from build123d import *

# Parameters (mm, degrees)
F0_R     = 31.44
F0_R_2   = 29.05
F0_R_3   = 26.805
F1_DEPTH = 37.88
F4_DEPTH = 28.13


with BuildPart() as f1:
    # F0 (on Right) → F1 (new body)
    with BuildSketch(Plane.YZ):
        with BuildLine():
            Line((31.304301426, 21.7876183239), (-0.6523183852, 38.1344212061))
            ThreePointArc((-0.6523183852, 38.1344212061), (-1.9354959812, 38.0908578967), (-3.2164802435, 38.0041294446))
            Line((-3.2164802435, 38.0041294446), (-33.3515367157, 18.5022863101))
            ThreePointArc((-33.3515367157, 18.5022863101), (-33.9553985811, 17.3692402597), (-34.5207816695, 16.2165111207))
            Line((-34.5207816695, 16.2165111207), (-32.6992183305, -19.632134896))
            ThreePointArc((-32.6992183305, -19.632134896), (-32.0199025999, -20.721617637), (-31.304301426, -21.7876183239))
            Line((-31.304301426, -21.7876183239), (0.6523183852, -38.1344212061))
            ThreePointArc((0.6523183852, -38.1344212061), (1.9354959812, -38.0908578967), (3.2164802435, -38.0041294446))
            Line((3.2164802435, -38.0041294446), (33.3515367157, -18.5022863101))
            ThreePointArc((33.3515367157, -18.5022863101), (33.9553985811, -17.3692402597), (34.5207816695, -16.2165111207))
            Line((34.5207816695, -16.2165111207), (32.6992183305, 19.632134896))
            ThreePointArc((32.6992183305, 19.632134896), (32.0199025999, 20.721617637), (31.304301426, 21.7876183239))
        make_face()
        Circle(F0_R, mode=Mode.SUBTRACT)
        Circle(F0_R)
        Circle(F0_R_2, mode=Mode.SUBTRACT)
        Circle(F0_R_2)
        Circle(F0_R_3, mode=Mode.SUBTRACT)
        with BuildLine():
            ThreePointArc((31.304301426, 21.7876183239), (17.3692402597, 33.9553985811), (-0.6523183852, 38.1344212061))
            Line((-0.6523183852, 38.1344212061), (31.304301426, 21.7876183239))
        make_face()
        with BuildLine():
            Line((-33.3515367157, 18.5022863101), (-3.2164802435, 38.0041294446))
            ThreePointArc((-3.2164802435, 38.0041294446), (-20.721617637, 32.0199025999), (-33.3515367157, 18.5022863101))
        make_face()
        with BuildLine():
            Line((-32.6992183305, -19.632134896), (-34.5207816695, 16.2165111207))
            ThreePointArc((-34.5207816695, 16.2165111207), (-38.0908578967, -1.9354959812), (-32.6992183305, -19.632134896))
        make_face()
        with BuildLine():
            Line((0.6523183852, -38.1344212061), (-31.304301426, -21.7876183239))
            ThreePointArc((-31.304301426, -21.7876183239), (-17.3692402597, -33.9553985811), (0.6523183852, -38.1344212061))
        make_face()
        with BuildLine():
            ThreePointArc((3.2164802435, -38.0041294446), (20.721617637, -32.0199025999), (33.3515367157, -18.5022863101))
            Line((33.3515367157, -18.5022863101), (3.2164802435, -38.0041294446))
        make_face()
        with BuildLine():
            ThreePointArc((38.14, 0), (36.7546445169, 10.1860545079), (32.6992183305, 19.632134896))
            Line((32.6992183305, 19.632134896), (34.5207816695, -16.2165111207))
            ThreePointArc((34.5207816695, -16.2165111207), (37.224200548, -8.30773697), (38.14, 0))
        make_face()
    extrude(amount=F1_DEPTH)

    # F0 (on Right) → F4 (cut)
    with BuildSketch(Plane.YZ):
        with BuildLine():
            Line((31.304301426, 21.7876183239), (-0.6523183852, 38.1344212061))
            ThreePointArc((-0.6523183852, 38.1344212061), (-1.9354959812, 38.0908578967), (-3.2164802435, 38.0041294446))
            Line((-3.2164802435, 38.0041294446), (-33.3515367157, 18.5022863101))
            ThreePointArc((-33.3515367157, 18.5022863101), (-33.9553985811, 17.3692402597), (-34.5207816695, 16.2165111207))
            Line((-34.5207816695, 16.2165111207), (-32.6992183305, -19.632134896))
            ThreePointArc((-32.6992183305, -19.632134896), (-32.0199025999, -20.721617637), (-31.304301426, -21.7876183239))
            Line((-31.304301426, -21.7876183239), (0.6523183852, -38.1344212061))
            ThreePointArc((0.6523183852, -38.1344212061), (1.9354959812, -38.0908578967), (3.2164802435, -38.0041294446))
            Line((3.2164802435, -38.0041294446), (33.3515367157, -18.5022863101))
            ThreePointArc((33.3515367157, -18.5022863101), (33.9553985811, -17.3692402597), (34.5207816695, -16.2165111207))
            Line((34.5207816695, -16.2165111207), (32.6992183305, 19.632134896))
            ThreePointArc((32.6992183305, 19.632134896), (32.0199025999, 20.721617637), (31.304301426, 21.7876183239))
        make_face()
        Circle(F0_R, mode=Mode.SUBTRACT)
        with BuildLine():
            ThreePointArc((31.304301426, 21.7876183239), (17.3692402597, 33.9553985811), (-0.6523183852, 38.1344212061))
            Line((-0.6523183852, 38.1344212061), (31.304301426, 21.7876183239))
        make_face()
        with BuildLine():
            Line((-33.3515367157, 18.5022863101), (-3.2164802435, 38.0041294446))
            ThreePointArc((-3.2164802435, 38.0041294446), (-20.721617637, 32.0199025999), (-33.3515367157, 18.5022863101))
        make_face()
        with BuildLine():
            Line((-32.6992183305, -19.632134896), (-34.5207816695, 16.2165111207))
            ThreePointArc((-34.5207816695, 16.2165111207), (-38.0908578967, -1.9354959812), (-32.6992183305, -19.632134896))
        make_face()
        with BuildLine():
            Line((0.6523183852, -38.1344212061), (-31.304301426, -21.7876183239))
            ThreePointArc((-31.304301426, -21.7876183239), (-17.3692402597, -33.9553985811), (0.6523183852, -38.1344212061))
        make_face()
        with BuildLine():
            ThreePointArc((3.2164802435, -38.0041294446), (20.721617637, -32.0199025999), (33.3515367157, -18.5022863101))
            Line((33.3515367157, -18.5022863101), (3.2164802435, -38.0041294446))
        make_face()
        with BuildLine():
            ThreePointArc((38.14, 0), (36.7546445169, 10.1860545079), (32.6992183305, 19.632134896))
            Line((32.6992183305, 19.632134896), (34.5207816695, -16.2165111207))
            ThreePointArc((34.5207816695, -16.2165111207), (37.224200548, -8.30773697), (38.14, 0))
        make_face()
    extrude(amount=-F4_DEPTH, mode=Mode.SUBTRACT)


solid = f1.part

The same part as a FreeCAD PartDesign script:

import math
import FreeCAD as App
import Part
import Sketcher

V = App.Vector

doc = App.newDocument("Part")
params = doc.addObject("Spreadsheet::Sheet", "Params")
for row, (alias, value) in enumerate([
    ("sketch1_diameter", "53.61 mm"),
    ("sketch1_radius", "38.14 mm"),
    ("pad1_length", "37.88 mm"),
    ("sketch2_diameter", "62.88 mm"),
    ("sketch2_radius", "38.14 mm"),
    ("pocket1_length", "28.13 mm"),
], start=1):
    params.set(f"A{row}", alias)
    params.set(f"B{row}", "=" + value)
    params.setAlias(f"B{row}", alias)

body = doc.addObject("PartDesign::Body", "Body")

# Sketch on YZ plane
sketch1 = body.newObject("Sketcher::SketchObject", "Sketch")
sketch1.AttachmentSupport = (doc.getObject("YZ_Plane"), [""])
sketch1.MapMode = "FlatFace"
sketch1.addGeometry(Part.ArcOfCircle(Part.Circle(V(0, 0, 0), V(0, 0, 1), 38.1), math.radians(30.98), math.radians(34.84)), False)
sketch1.addGeometry(Part.ArcOfCircle(Part.Circle(V(0, 0, 0), V(0, 0, 1), 38.1), math.radians(35), math.radians(91)), False)
sketch1.addGeometry(Part.ArcOfCircle(Part.Circle(V(0, 0, 0), V(0, 0, 1), 38.1), math.radians(90.98), math.radians(94.84)), False)
sketch1.addGeometry(Part.ArcOfCircle(Part.Circle(V(0, 0, 0), V(0, 0, 1), 38.1), math.radians(95), math.radians(151)), False)
sketch1.addGeometry(Part.ArcOfCircle(Part.Circle(V(0, 0, 0), V(0, 0, 1), 38.1), math.radians(150.98), math.radians(154.84)), False)
sketch1.addGeometry(Part.ArcOfCircle(Part.Circle(V(0, 0, 0), V(0, 0, 1), 38.1), math.radians(155), math.radians(211)), False)
sketch1.addGeometry(Part.ArcOfCircle(Part.Circle(V(0, 0, 0), V(0, 0, 1), 38.1), math.radians(-149.02), math.radians(-145.16)), False)
sketch1.addGeometry(Part.ArcOfCircle(Part.Circle(V(0, 0, 0), V(0, 0, 1), 38.1), math.radians(-145), math.radians(-89)), False)
sketch1.addGeometry(Part.ArcOfCircle(Part.Circle(V(0, 0, 0), V(0, 0, 1), 38.1), math.radians(-89.02), math.radians(-85.16)), False)
sketch1.addGeometry(Part.ArcOfCircle(Part.Circle(V(0, 0, 0), V(0, 0, 1), 38.1), math.radians(-85), math.radians(-29)), False)
sketch1.addGeometry(Part.ArcOfCircle(Part.Circle(V(0, 0, 0), V(0, 0, 1), 38.1), math.radians(-29.02), math.radians(-25.16)), False)
sketch1.addGeometry(Part.ArcOfCircle(Part.Circle(V(0, 0, 0), V(0, 0, 1), 38.1), math.radians(-25), math.radians(0)), False)
sketch1.addGeometry(Part.ArcOfCircle(Part.Circle(V(0, 0, 0), V(0, 0, 1), 38.1), math.radians(0), math.radians(31)), False)
sketch1.addGeometry(Part.Circle(V(0, 0, 0), V(0, 0, 1), 26.8), False)
sketch1.addConstraint(Sketcher.Constraint("Tangent", 0, 2, 1, 1))
sketch1.addConstraint(Sketcher.Constraint("Tangent", 1, 2, 2, 1))
sketch1.addConstraint(Sketcher.Constraint("Tangent", 2, 2, 3, 1))
sketch1.addConstraint(Sketcher.Constraint("Tangent", 3, 2, 4, 1))
sketch1.addConstraint(Sketcher.Constraint("Tangent", 4, 2, 5, 1))
sketch1.addConstraint(Sketcher.Constraint("Tangent", 5, 2, 6, 1))
sketch1.addConstraint(Sketcher.Constraint("Tangent", 6, 2, 7, 1))
sketch1.addConstraint(Sketcher.Constraint("Tangent", 7, 2, 8, 1))
sketch1.addConstraint(Sketcher.Constraint("Tangent", 8, 2, 9, 1))
sketch1.addConstraint(Sketcher.Constraint("Tangent", 9, 2, 10, 1))
sketch1.addConstraint(Sketcher.Constraint("Tangent", 10, 2, 11, 1))
sketch1.addConstraint(Sketcher.Constraint("Tangent", 11, 2, 12, 1))
sketch1.addConstraint(Sketcher.Constraint("Tangent", 12, 2, 0, 1))
sketch1.addConstraint(Sketcher.Constraint("Coincident", 0, 3, -1, 1))
sketch1.addConstraint(Sketcher.Constraint("Coincident", 2, 3, -1, 1))
sketch1.addConstraint(Sketcher.Constraint("Coincident", 4, 3, -1, 1))
sketch1.addConstraint(Sketcher.Constraint("Coincident", 6, 3, -1, 1))
sketch1.addConstraint(Sketcher.Constraint("Coincident", 8, 3, -1, 1))
sketch1.addConstraint(Sketcher.Constraint("Coincident", 10, 3, -1, 1))
sketch1.addConstraint(Sketcher.Constraint("Coincident", 13, 3, -1, 1))
sketch1.addConstraint(Sketcher.Constraint("PointOnObject", 11, 2, -1))
sketch1.addConstraint(Sketcher.Constraint("Diameter", 13, 53.61))
sketch1.addConstraint(Sketcher.Constraint("Radius", 0, 38.14))
sketch1.addConstraint(Sketcher.Constraint("DistanceX", -1, 1, 0, 2, 31.304301))
sketch1.addConstraint(Sketcher.Constraint("DistanceX", 6, 2, -1, 1, 31.304301))
sketch1.addConstraint(Sketcher.Constraint("DistanceX", 4, 2, 2, 2, 31.304301))
sketch1.addConstraint(Sketcher.Constraint("DistanceX", 8, 2, 10, 2, 31.304301))
sketch1.addConstraint(Sketcher.Constraint("DistanceX", 1, 2, -1, 1, 0.652318))
sketch1.addConstraint(Sketcher.Constraint("DistanceX", 2, 2, -1, 1, 3.21648))
sketch1.addConstraint(Sketcher.Constraint("DistanceX", 5, 2, -1, 1, 32.699218))
sketch1.addConstraint(Sketcher.Constraint("DistanceX", -1, 1, 7, 2, 0.652318))
sketch1.addConstraint(Sketcher.Constraint("DistanceX", -1, 1, 8, 2, 3.21648))
sketch1.addConstraint(Sketcher.Constraint("DistanceX", -1, 1, 12, 2, 32.699218))
sketch1.addConstraint(Sketcher.Constraint("DistanceX", 3, 2, 5, 2, 0.652318))
sketch1.addConstraint(Sketcher.Constraint("DistanceX", -1, 1, 9, 2, 33.351537))
sketch1.setExpression("Constraints[21]", "Params.sketch1_diameter")
sketch1.setExpression("Constraints[22]", "Params.sketch1_radius")
pad1 = body.newObject("PartDesign::Pad", "Pad")
pad1.Profile = sketch1
pad1.setExpression("Length", "Params.pad1_length")

# Sketch on YZ plane
sketch2 = body.newObject("Sketcher::SketchObject", "Sketch001")
sketch2.AttachmentSupport = (doc.getObject("YZ_Plane"), [""])
sketch2.MapMode = "FlatFace"
sketch2.addGeometry(Part.ArcOfCircle(Part.Circle(V(0, 0, 0), V(0, 0, 1), 38.1), math.radians(30.98), math.radians(34.84)), False)
sketch2.addGeometry(Part.ArcOfCircle(Part.Circle(V(0, 0, 0), V(0, 0, 1), 38.1), math.radians(35), math.radians(91)), False)
sketch2.addGeometry(Part.ArcOfCircle(Part.Circle(V(0, 0, 0), V(0, 0, 1), 38.1), math.radians(90.98), math.radians(94.84)), False)
sketch2.addGeometry(Part.ArcOfCircle(Part.Circle(V(0, 0, 0), V(0, 0, 1), 38.1), math.radians(95), math.radians(151)), False)
sketch2.addGeometry(Part.ArcOfCircle(Part.Circle(V(0, 0, 0), V(0, 0, 1), 38.1), math.radians(150.98), math.radians(154.84)), False)
sketch2.addGeometry(Part.ArcOfCircle(Part.Circle(V(0, 0, 0), V(0, 0, 1), 38.1), math.radians(155), math.radians(211)), False)
sketch2.addGeometry(Part.ArcOfCircle(Part.Circle(V(0, 0, 0), V(0, 0, 1), 38.1), math.radians(-149.02), math.radians(-145.16)), False)
sketch2.addGeometry(Part.ArcOfCircle(Part.Circle(V(0, 0, 0), V(0, 0, 1), 38.1), math.radians(-145), math.radians(-89)), False)
sketch2.addGeometry(Part.ArcOfCircle(Part.Circle(V(0, 0, 0), V(0, 0, 1), 38.1), math.radians(-89.02), math.radians(-85.16)), False)
sketch2.addGeometry(Part.ArcOfCircle(Part.Circle(V(0, 0, 0), V(0, 0, 1), 38.1), math.radians(-85), math.radians(-29)), False)
sketch2.addGeometry(Part.ArcOfCircle(Part.Circle(V(0, 0, 0), V(0, 0, 1), 38.1), math.radians(-29.02), math.radians(-25.16)), False)
sketch2.addGeometry(Part.ArcOfCircle(Part.Circle(V(0, 0, 0), V(0, 0, 1), 38.1), math.radians(-25), math.radians(0)), False)
sketch2.addGeometry(Part.ArcOfCircle(Part.Circle(V(0, 0, 0), V(0, 0, 1), 38.1), math.radians(0), math.radians(31)), False)
sketch2.addGeometry(Part.Circle(V(0, 0, 0), V(0, 0, 1), 31.4), False)
sketch2.addConstraint(Sketcher.Constraint("Tangent", 0, 2, 1, 1))
sketch2.addConstraint(Sketcher.Constraint("Tangent", 1, 2, 2, 1))
sketch2.addConstraint(Sketcher.Constraint("Tangent", 2, 2, 3, 1))
sketch2.addConstraint(Sketcher.Constraint("Tangent", 3, 2, 4, 1))
sketch2.addConstraint(Sketcher.Constraint("Tangent", 4, 2, 5, 1))
sketch2.addConstraint(Sketcher.Constraint("Tangent", 5, 2, 6, 1))
sketch2.addConstraint(Sketcher.Constraint("Tangent", 6, 2, 7, 1))
sketch2.addConstraint(Sketcher.Constraint("Tangent", 7, 2, 8, 1))
sketch2.addConstraint(Sketcher.Constraint("Tangent", 8, 2, 9, 1))
sketch2.addConstraint(Sketcher.Constraint("Tangent", 9, 2, 10, 1))
sketch2.addConstraint(Sketcher.Constraint("Tangent", 10, 2, 11, 1))
sketch2.addConstraint(Sketcher.Constraint("Tangent", 11, 2, 12, 1))
sketch2.addConstraint(Sketcher.Constraint("Tangent", 12, 2, 0, 1))
sketch2.addConstraint(Sketcher.Constraint("Coincident", 0, 3, -1, 1))
sketch2.addConstraint(Sketcher.Constraint("Coincident", 2, 3, -1, 1))
sketch2.addConstraint(Sketcher.Constraint("Coincident", 4, 3, -1, 1))
sketch2.addConstraint(Sketcher.Constraint("Coincident", 6, 3, -1, 1))
sketch2.addConstraint(Sketcher.Constraint("Coincident", 8, 3, -1, 1))
sketch2.addConstraint(Sketcher.Constraint("Coincident", 10, 3, -1, 1))
sketch2.addConstraint(Sketcher.Constraint("Coincident", 13, 3, -1, 1))
sketch2.addConstraint(Sketcher.Constraint("PointOnObject", 11, 2, -1))
sketch2.addConstraint(Sketcher.Constraint("Diameter", 13, 62.88))
sketch2.addConstraint(Sketcher.Constraint("Radius", 0, 38.14))
sketch2.addConstraint(Sketcher.Constraint("DistanceX", -1, 1, 0, 2, 31.304301))
sketch2.addConstraint(Sketcher.Constraint("DistanceX", 6, 2, -1, 1, 31.304301))
sketch2.addConstraint(Sketcher.Constraint("DistanceX", 4, 2, 2, 2, 31.304301))
sketch2.addConstraint(Sketcher.Constraint("DistanceX", 8, 2, 10, 2, 31.304301))
sketch2.addConstraint(Sketcher.Constraint("DistanceX", 1, 2, -1, 1, 0.652318))
sketch2.addConstraint(Sketcher.Constraint("DistanceX", 2, 2, -1, 1, 3.21648))
sketch2.addConstraint(Sketcher.Constraint("DistanceX", 5, 2, -1, 1, 32.699218))
sketch2.addConstraint(Sketcher.Constraint("DistanceX", -1, 1, 7, 2, 0.652318))
sketch2.addConstraint(Sketcher.Constraint("DistanceX", -1, 1, 8, 2, 3.21648))
sketch2.addConstraint(Sketcher.Constraint("DistanceX", -1, 1, 12, 2, 32.699218))
sketch2.addConstraint(Sketcher.Constraint("DistanceX", 3, 2, 5, 2, 0.652318))
sketch2.addConstraint(Sketcher.Constraint("DistanceX", -1, 1, 9, 2, 33.351537))
sketch2.setExpression("Constraints[21]", "Params.sketch2_diameter")
sketch2.setExpression("Constraints[22]", "Params.sketch2_radius")
pocket1 = body.newObject("PartDesign::Pocket", "Pocket")
pocket1.Profile = sketch2
pocket1.setExpression("Length", "Params.pocket1_length")

doc.recompute()
